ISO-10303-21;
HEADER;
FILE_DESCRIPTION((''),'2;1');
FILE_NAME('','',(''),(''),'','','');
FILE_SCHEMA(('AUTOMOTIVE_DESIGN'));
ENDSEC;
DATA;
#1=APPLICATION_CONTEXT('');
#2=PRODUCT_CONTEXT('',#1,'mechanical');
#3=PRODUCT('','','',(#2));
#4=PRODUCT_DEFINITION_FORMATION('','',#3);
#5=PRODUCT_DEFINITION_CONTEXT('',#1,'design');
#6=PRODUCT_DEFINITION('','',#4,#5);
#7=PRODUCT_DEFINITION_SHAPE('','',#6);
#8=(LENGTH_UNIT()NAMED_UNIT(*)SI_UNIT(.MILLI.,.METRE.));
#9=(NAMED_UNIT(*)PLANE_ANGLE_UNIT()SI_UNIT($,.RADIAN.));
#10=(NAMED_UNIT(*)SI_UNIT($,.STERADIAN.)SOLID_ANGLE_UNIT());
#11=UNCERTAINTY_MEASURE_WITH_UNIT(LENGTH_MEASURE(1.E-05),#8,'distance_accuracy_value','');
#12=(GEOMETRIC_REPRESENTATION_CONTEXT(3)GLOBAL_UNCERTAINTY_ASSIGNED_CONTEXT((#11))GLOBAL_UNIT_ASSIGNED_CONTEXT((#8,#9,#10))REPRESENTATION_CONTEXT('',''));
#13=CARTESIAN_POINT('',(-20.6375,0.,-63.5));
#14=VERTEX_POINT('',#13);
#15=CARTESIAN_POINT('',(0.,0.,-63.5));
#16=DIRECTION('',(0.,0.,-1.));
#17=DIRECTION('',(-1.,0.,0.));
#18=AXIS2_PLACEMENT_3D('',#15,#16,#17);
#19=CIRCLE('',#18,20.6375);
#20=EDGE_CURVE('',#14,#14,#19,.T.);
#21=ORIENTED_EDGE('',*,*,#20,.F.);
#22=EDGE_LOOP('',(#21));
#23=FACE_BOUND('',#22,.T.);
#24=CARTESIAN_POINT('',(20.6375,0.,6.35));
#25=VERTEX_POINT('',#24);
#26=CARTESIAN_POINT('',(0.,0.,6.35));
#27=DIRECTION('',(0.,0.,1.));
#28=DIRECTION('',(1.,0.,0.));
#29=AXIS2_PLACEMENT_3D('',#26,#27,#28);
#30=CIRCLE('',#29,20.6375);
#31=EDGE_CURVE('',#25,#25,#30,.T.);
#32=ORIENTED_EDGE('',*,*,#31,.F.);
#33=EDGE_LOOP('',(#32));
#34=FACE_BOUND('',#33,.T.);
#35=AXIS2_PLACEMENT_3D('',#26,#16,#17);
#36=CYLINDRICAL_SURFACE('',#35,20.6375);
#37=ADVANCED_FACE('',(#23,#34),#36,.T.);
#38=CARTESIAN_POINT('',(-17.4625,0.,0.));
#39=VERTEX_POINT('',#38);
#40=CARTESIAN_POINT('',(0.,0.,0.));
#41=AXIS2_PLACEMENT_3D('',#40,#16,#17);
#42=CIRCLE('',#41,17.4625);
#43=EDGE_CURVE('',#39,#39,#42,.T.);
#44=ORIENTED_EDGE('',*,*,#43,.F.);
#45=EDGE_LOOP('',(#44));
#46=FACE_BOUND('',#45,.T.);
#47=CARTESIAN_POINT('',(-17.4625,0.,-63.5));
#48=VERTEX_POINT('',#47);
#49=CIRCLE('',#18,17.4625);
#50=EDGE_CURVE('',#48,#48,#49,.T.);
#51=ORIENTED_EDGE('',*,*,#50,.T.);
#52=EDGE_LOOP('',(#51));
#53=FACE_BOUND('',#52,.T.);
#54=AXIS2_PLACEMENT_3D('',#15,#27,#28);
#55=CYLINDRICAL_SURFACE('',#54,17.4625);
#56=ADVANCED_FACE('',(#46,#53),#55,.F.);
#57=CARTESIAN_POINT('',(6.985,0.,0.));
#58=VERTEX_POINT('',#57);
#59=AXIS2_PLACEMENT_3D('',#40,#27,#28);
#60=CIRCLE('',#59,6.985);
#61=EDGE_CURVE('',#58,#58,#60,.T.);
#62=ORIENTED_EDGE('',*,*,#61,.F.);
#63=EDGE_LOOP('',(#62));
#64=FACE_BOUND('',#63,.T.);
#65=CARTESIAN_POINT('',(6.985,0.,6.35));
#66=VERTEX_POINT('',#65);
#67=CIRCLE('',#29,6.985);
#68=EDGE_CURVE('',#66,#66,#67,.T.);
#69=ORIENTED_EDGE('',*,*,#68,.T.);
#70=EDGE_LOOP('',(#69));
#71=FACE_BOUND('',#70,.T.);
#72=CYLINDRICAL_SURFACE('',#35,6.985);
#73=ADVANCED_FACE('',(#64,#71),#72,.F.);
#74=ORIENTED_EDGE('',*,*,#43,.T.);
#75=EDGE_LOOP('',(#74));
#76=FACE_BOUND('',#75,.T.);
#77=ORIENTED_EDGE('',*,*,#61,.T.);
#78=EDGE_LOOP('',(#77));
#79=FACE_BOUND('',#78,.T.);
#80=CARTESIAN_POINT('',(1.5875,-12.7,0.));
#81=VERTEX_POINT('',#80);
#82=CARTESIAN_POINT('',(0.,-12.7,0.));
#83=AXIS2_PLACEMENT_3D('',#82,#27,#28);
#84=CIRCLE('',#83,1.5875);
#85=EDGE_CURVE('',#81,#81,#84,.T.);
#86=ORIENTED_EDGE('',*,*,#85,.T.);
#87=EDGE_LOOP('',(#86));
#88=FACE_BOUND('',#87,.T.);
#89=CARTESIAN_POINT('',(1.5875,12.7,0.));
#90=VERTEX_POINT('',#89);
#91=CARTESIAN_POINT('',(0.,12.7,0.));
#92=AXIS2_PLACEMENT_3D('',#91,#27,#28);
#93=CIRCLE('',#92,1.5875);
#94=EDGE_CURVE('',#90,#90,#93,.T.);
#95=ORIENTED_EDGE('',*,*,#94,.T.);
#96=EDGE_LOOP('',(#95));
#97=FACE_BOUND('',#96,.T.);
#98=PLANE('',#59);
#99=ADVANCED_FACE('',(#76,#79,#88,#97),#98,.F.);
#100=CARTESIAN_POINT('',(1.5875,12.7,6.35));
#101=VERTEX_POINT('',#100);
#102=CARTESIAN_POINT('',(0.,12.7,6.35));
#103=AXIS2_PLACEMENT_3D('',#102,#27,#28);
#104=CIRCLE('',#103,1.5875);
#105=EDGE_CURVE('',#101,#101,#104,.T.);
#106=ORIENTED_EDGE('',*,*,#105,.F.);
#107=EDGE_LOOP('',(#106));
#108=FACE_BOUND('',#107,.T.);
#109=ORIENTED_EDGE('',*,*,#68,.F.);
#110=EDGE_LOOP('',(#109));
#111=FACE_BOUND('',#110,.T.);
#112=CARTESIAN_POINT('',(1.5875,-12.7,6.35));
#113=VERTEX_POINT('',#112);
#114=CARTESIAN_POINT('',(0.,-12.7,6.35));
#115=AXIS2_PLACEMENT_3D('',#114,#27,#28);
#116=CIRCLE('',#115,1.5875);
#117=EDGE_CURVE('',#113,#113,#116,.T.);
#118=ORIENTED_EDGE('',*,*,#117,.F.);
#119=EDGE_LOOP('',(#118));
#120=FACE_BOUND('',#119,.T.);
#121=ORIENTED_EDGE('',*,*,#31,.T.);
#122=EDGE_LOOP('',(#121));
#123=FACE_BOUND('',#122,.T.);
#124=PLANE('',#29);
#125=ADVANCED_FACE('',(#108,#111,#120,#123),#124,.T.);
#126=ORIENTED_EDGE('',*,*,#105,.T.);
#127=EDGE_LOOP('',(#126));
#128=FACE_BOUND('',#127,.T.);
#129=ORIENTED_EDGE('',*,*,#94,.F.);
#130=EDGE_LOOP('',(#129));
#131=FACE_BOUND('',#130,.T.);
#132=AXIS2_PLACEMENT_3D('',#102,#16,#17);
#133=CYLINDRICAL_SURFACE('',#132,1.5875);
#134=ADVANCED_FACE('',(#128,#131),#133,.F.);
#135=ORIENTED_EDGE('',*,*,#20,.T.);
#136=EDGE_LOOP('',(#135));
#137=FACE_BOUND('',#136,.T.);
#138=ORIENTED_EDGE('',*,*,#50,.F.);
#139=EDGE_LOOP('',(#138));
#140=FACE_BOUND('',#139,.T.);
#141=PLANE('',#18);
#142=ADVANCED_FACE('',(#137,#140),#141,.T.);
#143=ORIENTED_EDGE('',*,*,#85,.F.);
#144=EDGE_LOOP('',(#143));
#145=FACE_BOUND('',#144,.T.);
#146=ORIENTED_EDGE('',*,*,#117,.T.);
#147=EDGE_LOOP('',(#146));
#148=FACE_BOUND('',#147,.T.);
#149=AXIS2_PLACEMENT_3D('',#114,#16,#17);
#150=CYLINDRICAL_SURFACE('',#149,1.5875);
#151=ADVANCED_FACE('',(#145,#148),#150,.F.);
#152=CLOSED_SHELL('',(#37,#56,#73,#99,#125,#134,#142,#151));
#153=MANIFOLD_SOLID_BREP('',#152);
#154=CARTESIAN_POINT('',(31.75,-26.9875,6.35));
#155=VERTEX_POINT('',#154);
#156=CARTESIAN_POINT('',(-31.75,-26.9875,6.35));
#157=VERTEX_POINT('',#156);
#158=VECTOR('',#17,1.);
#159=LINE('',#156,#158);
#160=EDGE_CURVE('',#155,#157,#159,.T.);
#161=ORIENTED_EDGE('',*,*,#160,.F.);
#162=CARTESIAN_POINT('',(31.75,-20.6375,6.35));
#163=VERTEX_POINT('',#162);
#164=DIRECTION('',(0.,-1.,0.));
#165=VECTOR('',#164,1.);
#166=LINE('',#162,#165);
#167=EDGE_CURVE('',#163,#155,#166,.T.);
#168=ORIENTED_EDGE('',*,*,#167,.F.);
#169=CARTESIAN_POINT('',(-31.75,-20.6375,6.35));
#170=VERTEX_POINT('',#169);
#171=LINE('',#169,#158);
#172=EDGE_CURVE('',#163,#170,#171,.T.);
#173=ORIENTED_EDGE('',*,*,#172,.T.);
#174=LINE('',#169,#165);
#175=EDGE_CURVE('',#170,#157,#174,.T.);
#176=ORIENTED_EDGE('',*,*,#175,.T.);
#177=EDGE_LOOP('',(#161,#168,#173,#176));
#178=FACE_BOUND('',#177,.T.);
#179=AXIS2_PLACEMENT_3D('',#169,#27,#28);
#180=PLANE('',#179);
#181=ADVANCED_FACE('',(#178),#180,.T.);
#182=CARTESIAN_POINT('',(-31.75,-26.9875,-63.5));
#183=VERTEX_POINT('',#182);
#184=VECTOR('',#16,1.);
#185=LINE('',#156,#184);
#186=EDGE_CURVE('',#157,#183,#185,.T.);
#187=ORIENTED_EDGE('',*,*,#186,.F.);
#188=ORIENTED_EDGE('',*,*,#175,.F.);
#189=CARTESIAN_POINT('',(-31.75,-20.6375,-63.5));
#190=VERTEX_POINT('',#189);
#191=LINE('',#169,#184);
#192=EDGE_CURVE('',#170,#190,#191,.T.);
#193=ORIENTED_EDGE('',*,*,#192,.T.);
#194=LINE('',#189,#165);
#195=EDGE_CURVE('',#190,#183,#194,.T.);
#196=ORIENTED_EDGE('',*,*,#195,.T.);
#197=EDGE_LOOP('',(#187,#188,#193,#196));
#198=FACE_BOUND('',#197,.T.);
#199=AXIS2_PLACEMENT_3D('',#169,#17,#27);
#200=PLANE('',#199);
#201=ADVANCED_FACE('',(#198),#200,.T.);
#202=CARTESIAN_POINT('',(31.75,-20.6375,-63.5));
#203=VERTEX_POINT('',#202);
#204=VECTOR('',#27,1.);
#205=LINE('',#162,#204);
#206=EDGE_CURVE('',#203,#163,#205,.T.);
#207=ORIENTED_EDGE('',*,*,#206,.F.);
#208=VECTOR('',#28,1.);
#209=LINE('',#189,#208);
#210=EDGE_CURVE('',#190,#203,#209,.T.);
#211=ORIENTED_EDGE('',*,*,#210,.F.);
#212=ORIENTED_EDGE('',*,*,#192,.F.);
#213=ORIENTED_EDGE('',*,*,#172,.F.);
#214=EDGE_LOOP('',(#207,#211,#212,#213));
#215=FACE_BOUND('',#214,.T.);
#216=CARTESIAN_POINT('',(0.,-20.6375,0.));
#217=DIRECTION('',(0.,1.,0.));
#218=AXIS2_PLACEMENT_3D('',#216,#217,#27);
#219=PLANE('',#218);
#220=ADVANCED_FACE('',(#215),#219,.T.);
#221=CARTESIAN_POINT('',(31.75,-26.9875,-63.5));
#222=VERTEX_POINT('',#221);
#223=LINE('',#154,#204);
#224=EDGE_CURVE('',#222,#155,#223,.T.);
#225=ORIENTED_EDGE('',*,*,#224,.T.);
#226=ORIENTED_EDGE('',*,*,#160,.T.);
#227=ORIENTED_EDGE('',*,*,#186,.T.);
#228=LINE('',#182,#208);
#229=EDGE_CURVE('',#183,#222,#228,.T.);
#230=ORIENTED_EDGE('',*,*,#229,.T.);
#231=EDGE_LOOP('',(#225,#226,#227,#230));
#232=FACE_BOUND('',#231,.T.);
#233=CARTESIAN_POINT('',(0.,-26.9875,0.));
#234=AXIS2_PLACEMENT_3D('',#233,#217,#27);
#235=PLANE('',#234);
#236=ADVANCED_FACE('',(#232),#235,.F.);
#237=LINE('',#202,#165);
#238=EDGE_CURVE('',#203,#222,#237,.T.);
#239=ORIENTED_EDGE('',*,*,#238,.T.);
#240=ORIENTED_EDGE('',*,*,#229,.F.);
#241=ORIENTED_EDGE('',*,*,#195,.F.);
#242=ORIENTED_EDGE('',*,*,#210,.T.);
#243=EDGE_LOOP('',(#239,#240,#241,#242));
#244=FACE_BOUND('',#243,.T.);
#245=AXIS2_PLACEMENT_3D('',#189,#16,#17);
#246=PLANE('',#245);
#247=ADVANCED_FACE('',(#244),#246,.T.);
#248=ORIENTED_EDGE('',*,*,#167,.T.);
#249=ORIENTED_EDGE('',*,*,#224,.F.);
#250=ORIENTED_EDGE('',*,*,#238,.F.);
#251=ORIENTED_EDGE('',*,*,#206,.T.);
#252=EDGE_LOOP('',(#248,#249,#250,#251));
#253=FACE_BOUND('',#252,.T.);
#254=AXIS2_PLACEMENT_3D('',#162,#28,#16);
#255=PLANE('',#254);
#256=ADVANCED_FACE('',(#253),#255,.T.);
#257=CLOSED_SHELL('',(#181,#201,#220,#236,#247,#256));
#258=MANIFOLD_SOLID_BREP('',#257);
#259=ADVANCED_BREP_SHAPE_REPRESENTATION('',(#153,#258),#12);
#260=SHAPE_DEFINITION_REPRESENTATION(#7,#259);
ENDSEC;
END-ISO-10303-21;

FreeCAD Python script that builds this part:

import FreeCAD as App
import Part
import Sketcher
Q = App.Units.Quantity

doc = App.newDocument("Part")
params = doc.addObject("Spreadsheet::Sheet", "Params")
for row, (alias, value) in enumerate([
    ("sketch1_diameter", "0.55 in"),
    ("sketch1_diameter2", "1.625 in"),
    ("sketch1_diameter3", "0.125 in"),
    ("pad1_length", "0.25 in"),
    ("sketch2_diameter", "1.625 in"),
    ("sketch2_diameter2", "1.375 in"),
    ("pad2_length", "2.5 in"),
    ("sketch3_width", "2.5 in"),
    ("sketch3_height", "2.75 in"),
    ("pad3_length", "0.25 in"),
], start=1):
    params.set(f"A{row}", alias)
    params.set(f"B{row}", "=" + value)
    params.setAlias(f"B{row}", alias)

body = doc.addObject("PartDesign::Body", "Body")

# Sketch on XY plane
sketch1 = body.newObject("Sketcher::SketchObject", "Sketch")
sketch1.AttachmentSupport = (doc.getObject("XY_Plane"), [""])
sketch1.MapMode = "FlatFace"
sketch1.addGeometry([
    Part.Circle(App.Vector(0, 0, 0), App.Vector(0, 0, 1), 20.6),
    Part.Circle(App.Vector(0, 12.7, 0), App.Vector(0, 0, 1), 1.6),
    Part.Circle(App.Vector(0, -12.7, 0), App.Vector(0, 0, 1), 1.6),
    Part.Circle(App.Vector(0, 0, 0), App.Vector(0, 0, 1), 7),
], False)
sketch1.addConstraint([
    Sketcher.Constraint("Coincident", 0, 3, -1, 1),
    Sketcher.Constraint("Coincident", 3, 3, -1, 1),
    Sketcher.Constraint("Equal", 1, 2),
    Sketcher.Constraint("Symmetric", 1, 3, 2, 3, -1, 1),
    Sketcher.Constraint("PointOnObject", 1, 3, -2),
    Sketcher.Constraint("Diameter", 3, Q("0.55 in")),
    Sketcher.Constraint("Diameter", 0, Q("1.625 in")),
    Sketcher.Constraint("Diameter", 1, Q("0.125 in")),
    Sketcher.Constraint("DistanceY", 2, 3, 1, 3, Q("1 in")),
])
sketch1.setExpression("Constraints[5]", "Params.sketch1_diameter")
sketch1.setExpression("Constraints[6]", "Params.sketch1_diameter2")
sketch1.setExpression("Constraints[7]", "Params.sketch1_diameter3")
pad1 = body.newObject("PartDesign::Pad", "Pad")
pad1.Profile = sketch1
pad1.setExpression("Length", "Params.pad1_length")

# Sketch on XY plane
sketch2 = body.newObject("Sketcher::SketchObject", "Sketch001")
sketch2.AttachmentSupport = (doc.getObject("XY_Plane"), [""])
sketch2.MapMode = "FlatFace"
sketch2.AttachmentOffset = App.Placement(App.Vector(0, 0, -2.5 * 25.4), App.Rotation())
sketch2.addGeometry([
    Part.Circle(App.Vector(0, 0, 0), App.Vector(0, 0, 1), 21),
    Part.Circle(App.Vector(0, 0, 0), App.Vector(0, 0, 1), 17),
], False)
sketch2.addConstraint([
    Sketcher.Constraint("Coincident", 0, 3, -1, 1),
    Sketcher.Constraint("Coincident", 1, 3, -1, 1),
    Sketcher.Constraint("Diameter", 0, Q("1.625 in")),
    Sketcher.Constraint("Diameter", 1, Q("1.375 in")),
])
sketch2.setExpression("Constraints[2]", "Params.sketch2_diameter")
sketch2.setExpression("Constraints[3]", "Params.sketch2_diameter2")
pad2 = body.newObject("PartDesign::Pad", "Pad001")
pad2.Profile = sketch2
pad2.setExpression("Length", "Params.pad2_length")
body2 = doc.addObject("PartDesign::Body", "Body001")

# Sketch on XZ plane
sketch3 = body2.newObject("Sketcher::SketchObject", "Sketch002")
sketch3.AttachmentSupport = (doc.getObject("XZ_Plane001"), [""])
sketch3.MapMode = "FlatFace"
sketch3.AttachmentOffset = App.Placement(App.Vector(0, 0, 0.8125 * 25.4), App.Rotation())
sketch3.addGeometry([
    Part.LineSegment(App.Vector(32, 6, 0), App.Vector(-32, 6, 0)),
    Part.LineSegment(App.Vector(-32, 6, 0), App.Vector(-32, -63, 0)),
    Part.LineSegment(App.Vector(-32, -63, 0), App.Vector(32, -63, 0)),
    Part.LineSegment(App.Vector(32, -63, 0), App.Vector(32, 6, 0)),
], False)
sketch3.addConstraint([
    Sketcher.Constraint("Coincident", 0, 2, 1, 1),
    Sketcher.Constraint("Coincident", 1, 2, 2, 1),
    Sketcher.Constraint("Coincident", 2, 2, 3, 1),
    Sketcher.Constraint("Coincident", 3, 2, 0, 1),
    Sketcher.Constraint("Horizontal", 0),
    Sketcher.Constraint("Vertical", 1),
    Sketcher.Constraint("Horizontal", 2),
    Sketcher.Constraint("Vertical", 3),
    Sketcher.Constraint("DistanceX", 0, 2, 0, 1, Q("2.5 in")),
    Sketcher.Constraint("DistanceY", 1, 2, 1, 1, Q("2.75 in")),
    Sketcher.Constraint("DistanceY", 1, 2, -1, 1, Q("2.5 in")),
    Sketcher.Constraint("DistanceX", 0, 2, -1, 1, Q("1.25 in")),
])
sketch3.setExpression("Constraints[8]", "Params.sketch3_width")
sketch3.setExpression("Constraints[9]", "Params.sketch3_height")
pad3 = body2.newObject("PartDesign::Pad", "Pad002")
pad3.Profile = sketch3
pad3.setExpression("Length", "Params.pad3_length")

doc.recompute()
